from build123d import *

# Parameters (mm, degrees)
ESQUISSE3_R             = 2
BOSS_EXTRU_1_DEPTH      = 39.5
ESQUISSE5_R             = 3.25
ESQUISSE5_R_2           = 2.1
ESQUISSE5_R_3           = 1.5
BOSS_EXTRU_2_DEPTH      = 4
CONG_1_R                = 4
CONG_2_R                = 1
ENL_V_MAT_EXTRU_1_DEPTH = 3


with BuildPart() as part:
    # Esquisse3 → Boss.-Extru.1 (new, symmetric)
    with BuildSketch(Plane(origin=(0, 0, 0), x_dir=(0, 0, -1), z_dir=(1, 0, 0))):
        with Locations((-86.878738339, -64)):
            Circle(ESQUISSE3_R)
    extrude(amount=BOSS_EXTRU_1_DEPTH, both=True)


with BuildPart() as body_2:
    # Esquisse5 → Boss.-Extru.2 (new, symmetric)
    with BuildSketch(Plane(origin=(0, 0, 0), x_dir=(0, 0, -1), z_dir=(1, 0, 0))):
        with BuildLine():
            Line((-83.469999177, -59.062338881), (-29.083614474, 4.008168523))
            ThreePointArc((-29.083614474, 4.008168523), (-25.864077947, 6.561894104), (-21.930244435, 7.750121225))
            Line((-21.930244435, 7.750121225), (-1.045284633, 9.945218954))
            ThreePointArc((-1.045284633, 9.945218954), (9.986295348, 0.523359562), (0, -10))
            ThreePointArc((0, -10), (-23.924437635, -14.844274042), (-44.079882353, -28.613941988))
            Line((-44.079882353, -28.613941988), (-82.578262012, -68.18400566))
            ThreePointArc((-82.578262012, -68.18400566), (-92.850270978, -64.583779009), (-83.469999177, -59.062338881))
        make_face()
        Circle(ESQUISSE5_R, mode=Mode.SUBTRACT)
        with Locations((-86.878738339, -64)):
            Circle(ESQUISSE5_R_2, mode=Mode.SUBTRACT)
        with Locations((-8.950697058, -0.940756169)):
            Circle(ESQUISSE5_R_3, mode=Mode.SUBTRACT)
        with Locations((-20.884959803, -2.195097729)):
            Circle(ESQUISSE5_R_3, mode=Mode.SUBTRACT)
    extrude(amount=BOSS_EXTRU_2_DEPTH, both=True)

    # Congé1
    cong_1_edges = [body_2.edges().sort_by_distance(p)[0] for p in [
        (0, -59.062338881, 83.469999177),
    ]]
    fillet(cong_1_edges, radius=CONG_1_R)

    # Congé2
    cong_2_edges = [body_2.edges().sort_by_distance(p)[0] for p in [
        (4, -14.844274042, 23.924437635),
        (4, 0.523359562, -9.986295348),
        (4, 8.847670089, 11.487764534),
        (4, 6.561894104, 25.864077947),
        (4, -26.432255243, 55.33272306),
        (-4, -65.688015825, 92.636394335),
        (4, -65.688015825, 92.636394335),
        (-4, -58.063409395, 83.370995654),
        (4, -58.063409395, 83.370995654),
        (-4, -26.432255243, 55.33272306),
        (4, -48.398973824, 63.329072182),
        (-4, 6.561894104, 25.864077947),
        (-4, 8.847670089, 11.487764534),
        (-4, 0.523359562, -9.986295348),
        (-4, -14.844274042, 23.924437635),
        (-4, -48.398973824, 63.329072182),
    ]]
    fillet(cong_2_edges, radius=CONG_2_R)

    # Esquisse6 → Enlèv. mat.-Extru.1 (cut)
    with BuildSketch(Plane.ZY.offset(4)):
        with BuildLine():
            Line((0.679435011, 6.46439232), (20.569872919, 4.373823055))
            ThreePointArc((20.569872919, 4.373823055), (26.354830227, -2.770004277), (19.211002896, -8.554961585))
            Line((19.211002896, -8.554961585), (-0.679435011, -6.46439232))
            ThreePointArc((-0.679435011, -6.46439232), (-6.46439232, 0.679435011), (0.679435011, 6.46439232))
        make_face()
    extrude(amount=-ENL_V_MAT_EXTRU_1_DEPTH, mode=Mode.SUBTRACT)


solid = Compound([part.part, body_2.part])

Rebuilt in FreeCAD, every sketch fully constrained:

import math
import FreeCAD as App
import Part
import Sketcher

V = App.Vector
Q = App.Units.Quantity


def edges_at(feature, points):
    """Names of the edges that pass closest to the given points."""
    edges = feature.Shape.Edges
    near = lambda p: min(range(len(edges)), key=lambda i: edges[i].distToShape(Part.Vertex(*p))[0])
    return sorted({f"Edge{near(p) + 1}" for p in points})

doc = App.newDocument("Part")
params = doc.addObject("Spreadsheet::Sheet", "Params")
for row, (alias, value) in enumerate([
    ("sketch1_diameter", "4 mm"),
    ("pad1_length", "79 mm"),
    ("sketch2_diameter", "3 mm"),
    ("sketch2_radius", "6 mm"),
    ("sketch2_radius2", "10 mm"),
    ("sketch2_diameter2", "4.2 mm"),
    ("sketch2_diameter3", "6.5 mm"),
    ("pad2_length", "8 mm"),
    ("fillet_radius", "4 mm"),
    ("fillet2_radius", "1 mm"),
    ("sketch3_radius", "6.5 mm"),
    ("sketch3_length", "20 mm"),
    ("pocket1_length", "3 mm"),
], start=1):
    params.set(f"A{row}", alias)
    params.set(f"B{row}", "=" + value)
    params.setAlias(f"B{row}", alias)

body = doc.addObject("PartDesign::Body", "Body")

# Sketch on YZ plane
sketch1 = body.newObject("Sketcher::SketchObject", "Sketch")
sketch1.AttachmentSupport = (doc.getObject("YZ_Plane"), [""])
sketch1.MapMode = "FlatFace"
sketch1.addGeometry(Part.Circle(V(-64, 86.9, 0), V(0, 0, 1), 2), False)
sketch1.addConstraint(Sketcher.Constraint("Diameter", 0, Q("4 mm")))
sketch1.addConstraint(Sketcher.Constraint("DistanceX", 0, 3, -1, 1, Q("64 mm")))
sketch1.addConstraint(Sketcher.Constraint("DistanceY", -1, 1, 0, 3, Q("86.878738 mm")))
sketch1.setExpression("Constraints[0]", "Params.sketch1_diameter")
pad1 = body.newObject("PartDesign::Pad", "Pad")
pad1.Profile = sketch1
pad1.setExpression("Length", "Params.pad1_length")
pad1.Midplane = True
body2 = doc.addObject("PartDesign::Body", "Body001")

# Sketch on YZ plane
sketch2 = body2.newObject("Sketcher::SketchObject", "Sketch001")
sketch2.AttachmentSupport = (doc.getObject("YZ_Plane001"), [""])
sketch2.MapMode = "FlatFace"
sketch2.addGeometry(Part.LineSegment(V(4, 29.1, 0), V(-59.1, 83.5, 0)), False)
sketch2.addGeometry(Part.ArcOfCircle(Part.Circle(V(-64, 86.9, 0), V(0, 0, 1), 6), math.radians(-35), math.radians(226)), False)
sketch2.addGeometry(Part.LineSegment(V(-68.2, 82.6, 0), V(-28.6, 44.1, 0)), False)
sketch2.addGeometry(Part.ArcOfCircle(Part.Circle(V(-71.5, 0, 0), V(0, 0, 1), 61.5), math.radians(0), math.radians(46)), False)
sketch2.addGeometry(Part.ArcOfCircle(Part.Circle(V(0, 0, 0), V(0, 0, 1), 10), math.radians(180), math.radians(366)), False)
sketch2.addGeometry(Part.LineSegment(V(9.9, 1, 0), V(7.8, 21.9, 0)), False)
sketch2.addGeometry(Part.ArcOfCircle(Part.Circle(V(-3.1, 20.8, 0), V(0, 0, 1), 11), math.radians(6), math.radians(49)), False)
sketch2.addGeometry(Part.Circle(V(-64, 86.9, 0), V(0, 0, 1), 2.1), False)
sketch2.addGeometry(Part.Circle(V(0, 0, 0), V(0, 0, 1), 3.2), False)
sketch2.addGeometry(Part.Circle(V(-0.9, 9, 0), V(0, 0, 1), 1.5), False)
sketch2.addGeometry(Part.Circle(V(-2.2, 20.9, 0), V(0, 0, 1), 1.5), False)
sketch2.addConstraint(Sketcher.Constraint("Coincident", 0, 2, 1, 1))
sketch2.addConstraint(Sketcher.Constraint("Tangent", 1, 2, 2, 1))
sketch2.addConstraint(Sketcher.Constraint("Tangent", 2, 2, 3, 2))
sketch2.addConstraint(Sketcher.Constraint("Tangent", 3, 1, 4, 1))
sketch2.addConstraint(Sketcher.Constraint("Tangent", 4, 2, 5, 1))
sketch2.addConstraint(Sketcher.Constraint("Tangent", 5, 2, 6, 1))
sketch2.addConstraint(Sketcher.Constraint("Tangent", 6, 2, 0, 1))
sketch2.addConstraint(Sketcher.Constraint("Coincident", 4, 3, -1, 1))
sketch2.addConstraint(Sketcher.Constraint("Coincident", 8, 3, -1, 1))
sketch2.addConstraint(Sketcher.Constraint("Coincident", 7, 3, 1, 3))
sketch2.addConstraint(Sketcher.Constraint("Equal", 9, 10))
sketch2.addConstraint(Sketcher.Constraint("PointOnObject", 3, 3, -1))
sketch2.addConstraint(Sketcher.Constraint("Diameter", 9, Q("3 mm")))
sketch2.addConstraint(Sketcher.Constraint("Radius", 1, Q("6 mm")))
sketch2.addConstraint(Sketcher.Constraint("Radius", 4, Q("10 mm")))
sketch2.addConstraint(Sketcher.Constraint("Diameter", 7, Q("4.2 mm")))
sketch2.addConstraint(Sketcher.Constraint("Diameter", 8, Q("6.5 mm")))
sketch2.addConstraint(Sketcher.Constraint("Radius", 3, Q("61.5 mm")))
sketch2.addConstraint(Sketcher.Constraint("Angle", 5, Q("96 deg")))
sketch2.addConstraint(Sketcher.Constraint("Distance", 5, Q("21 mm")))
sketch2.addConstraint(Sketcher.Constraint("DistanceX", 1, 3, -1, 1, Q("64 mm")))
sketch2.addConstraint(Sketcher.Constraint("DistanceY", -1, 1, 0, 2, Q("83.469999 mm")))
sketch2.addConstraint(Sketcher.Constraint("Radius", 6, Q("10.958134 mm")))
sketch2.addConstraint(Sketcher.Constraint("DistanceY", -1, 1, 1, 3, Q("86.878738 mm")))
sketch2.addConstraint(Sketcher.Constraint("DistanceY", -1, 1, 10, 3, Q("20.88496 mm")))
sketch2.addConstraint(Sketcher.Constraint("DistanceY", 9, 3, 6, 3, Q("11.83411 mm")))
sketch2.addConstraint(Sketcher.Constraint("DistanceX", 10, 3, 9, 3, Q("1.254342 mm")))
sketch2.addConstraint(Sketcher.Constraint("DistanceX", 0, 2, 10, 3, Q("56.867241 mm")))
sketch2.setExpression("Constraints[12]", "Params.sketch2_diameter")
sketch2.setExpression("Constraints[13]", "Params.sketch2_radius")
sketch2.setExpression("Constraints[14]", "Params.sketch2_radius2")
sketch2.setExpression("Constraints[15]", "Params.sketch2_diameter2")
sketch2.setExpression("Constraints[16]", "Params.sketch2_diameter3")
pad2 = body2.newObject("PartDesign::Pad", "Pad001")
pad2.Profile = sketch2
pad2.setExpression("Length", "Params.pad2_length")
pad2.Midplane = True
doc.recompute()

fillet = body2.newObject("PartDesign::Fillet", "Fillet")
fillet.Base = (pad2, edges_at(pad2, [(0, -59.062, 83.47)]))
fillet.setExpression("Radius", "Params.fillet_radius")
doc.recompute()

fillet2 = body2.newObject("PartDesign::Fillet", "Fillet001")
fillet2.Base = (fillet, edges_at(fillet, [
    (4, -14.844, 23.924),
    (4, 0.523, -9.986),
    (4, 8.848, 11.488),
    (4, 6.562, 25.864),
    (4, -26.432, 55.333),
    (-4, -65.688, 92.636),
    (4, -65.688, 92.636),
    (-4, -58.063, 83.371),
    (4, -58.063, 83.371),
    (-4, -26.432, 55.333),
    (4, -48.399, 63.329),
    (-4, 6.562, 25.864),
    (-4, 8.848, 11.488),
    (-4, 0.523, -9.986),
    (-4, -14.844, 23.924),
    (-4, -48.399, 63.329),
]))
fillet2.setExpression("Radius", "Params.fillet2_radius")

# Sketch on YZ plane
sketch3 = body2.newObject("Sketcher::SketchObject", "Sketch002")
sketch3.AttachmentSupport = (doc.getObject("YZ_Plane001"), [""])
sketch3.MapMode = "FlatFace"
sketch3.AttachmentOffset = App.Placement(V(0, 0, -4), App.Rotation())
sketch3.addGeometry(Part.LineSegment(V(4, 21, 0), V(6, 1, 0)), False)
sketch3.addGeometry(Part.ArcOfCircle(Part.Circle(V(0, 0, 0), V(0, 0, 1), 6), math.radians(-174), math.radians(6)), False)
sketch3.addGeometry(Part.LineSegment(V(-6, -1, 0), V(-9, 19, 0)), False)
sketch3.addGeometry(Part.ArcOfCircle(Part.Circle(V(-2, 20, 0), V(0, 0, 1), 6), math.radians(6), math.radians(186)), False)
sketch3.addConstraint(Sketcher.Constraint("Tangent", 0, 2, 1, 2))
sketch3.addConstraint(Sketcher.Constraint("Tangent", 1, 1, 2, 1))
sketch3.addConstraint(Sketcher.Constraint("Tangent", 2, 2, 3, 2))
sketch3.addConstraint(Sketcher.Constraint("Tangent", 3, 1, 0, 1))
sketch3.addConstraint(Sketcher.Constraint("Coincident", 1, 3, -1, 1))
sketch3.addConstraint(Sketcher.Constraint("Equal", 1, 3))
sketch3.addConstraint(Sketcher.Constraint("Radius", 1, Q("6.5 mm")))
sketch3.addConstraint(Sketcher.Constraint("Angle", 0, Q("-84 deg")))
sketch3.addConstraint(Sketcher.Constraint("Distance", 0, Q("20 mm")))
sketch3.setExpression("Constraints[6]", "Params.sketch3_radius")
sketch3.setExpression("Constraints[8]", "Params.sketch3_length")
pocket1 = body2.newObject("PartDesign::Pocket", "Pocket")
pocket1.Profile = sketch3
pocket1.setExpression("Length", "Params.pocket1_length")
pocket1.Reversed = True

doc.recompute()
